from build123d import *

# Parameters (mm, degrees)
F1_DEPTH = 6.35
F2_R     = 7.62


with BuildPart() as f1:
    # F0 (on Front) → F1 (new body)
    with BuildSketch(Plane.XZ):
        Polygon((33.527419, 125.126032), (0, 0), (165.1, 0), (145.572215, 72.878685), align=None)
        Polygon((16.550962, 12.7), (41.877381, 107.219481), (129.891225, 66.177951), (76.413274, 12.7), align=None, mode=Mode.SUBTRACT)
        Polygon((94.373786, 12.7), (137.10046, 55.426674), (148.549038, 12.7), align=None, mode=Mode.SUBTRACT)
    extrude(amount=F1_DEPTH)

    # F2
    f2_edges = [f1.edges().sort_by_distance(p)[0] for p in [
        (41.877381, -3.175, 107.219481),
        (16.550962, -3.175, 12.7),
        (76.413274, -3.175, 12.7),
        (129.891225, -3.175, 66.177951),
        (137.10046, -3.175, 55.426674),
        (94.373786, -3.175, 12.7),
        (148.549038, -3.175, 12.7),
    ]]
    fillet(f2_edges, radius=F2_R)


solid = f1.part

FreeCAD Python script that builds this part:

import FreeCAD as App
import Part
import Sketcher
Q = App.Units.Quantity


def edges_at(feature, points):
    """Names of the edges that pass closest to the given points."""
    edges = feature.Shape.Edges
    near = lambda p: min(range(len(edges)), key=lambda i: edges[i].distToShape(Part.Vertex(*p))[0])
    return sorted({f"Edge{near(p) + 1}" for p in points})


def add_polygon(sketch, points):
    """Adds a closed chain of lines whose ends are joined by coincident constraints."""
    first, n = sketch.GeometryCount, len(points)
    for a, b in zip(points, points[1:] + points[:1]):
        sketch.addGeometry(Part.LineSegment(App.Vector(*a, 0), App.Vector(*b, 0)), False)
    for i in range(n):
        sketch.addConstraint(Sketcher.Constraint("Coincident", first + i, 2, first + (i + 1) % n, 1))

doc = App.newDocument("Part")
body = doc.addObject("PartDesign::Body", "Body")

sketch1 = body.newObject("Sketcher::SketchObject", "Sketch")
sketch1.AttachmentSupport = (doc.getObject("XZ_Plane"), [""])
sketch1.MapMode = "FlatFace"
add_polygon(sketch1, [(34, 125), (0, 0), (165, 0), (146, 73)])
add_polygon(sketch1, [(149, 13), (94, 13), (137, 55)])
add_polygon(sketch1, [(76, 13), (17, 13), (42, 107), (130, 66)])
sketch1.addConstraint([
    Sketcher.Constraint("Horizontal", 1),
    Sketcher.Constraint("Horizontal", 4),
    Sketcher.Constraint("Horizontal", 7),
    Sketcher.Constraint("Coincident", 0, 2, -1, 1),
    Sketcher.Constraint("Parallel", 2, 6),
    Sketcher.Constraint("Parallel", 0, 8),
    Sketcher.Constraint("Parallel", 3, 9),
    Sketcher.Constraint("Parallel", 5, 10),
    Sketcher.Constraint("Horizontal", 6, 2, 7, 2),
    Sketcher.Constraint("DistanceX", 1, 1, 1, 2, Q("6.5 in")),
    Sketcher.Constraint("Angle", 0, Q("-105 deg")),
    Sketcher.Constraint("Angle", 2, Q("105 deg")),
    Sketcher.Constraint("Angle", 3, Q("155 deg")),
    Sketcher.Constraint("Angle", 5, Q("45 deg")),
    Sketcher.Constraint("Distance", 0, Q("5.1 in")),
    Sketcher.Constraint("DistanceY", -1, 1, 4, 2, Q("0.5 in")),
    Sketcher.Constraint("DistanceY", 2, 2, 8, 2, Q("1.3519998 in")),
    Sketcher.Constraint("DistanceX", 7, 2, 5, 2, 120.549498),
    Sketcher.Constraint("Distance", 5, 60.424642),
    Sketcher.Constraint("DistanceX", 7, 2, 7, 1, 59.862312),
    Sketcher.Constraint("DistanceX", -1, 1, 5, 2, 137.10046),
])
pad1 = body.newObject("PartDesign::Pad", "Pad")
pad1.Profile = sketch1
pad1.Length = Q("0.25 in")
doc.recompute()

fillet = body.newObject("PartDesign::Fillet", "Fillet")
fillet.Base = (pad1, edges_at(pad1, [
    (41.877, -3.175, 107.219),
    (16.551, -3.175, 12.7),
    (76.413, -3.175, 12.7),
    (129.891, -3.175, 66.178),
    (137.1, -3.175, 55.427),
    (94.374, -3.175, 12.7),
    (148.549, -3.175, 12.7),
]))
fillet.Radius = Q("0.3 in")

doc.recompute()
